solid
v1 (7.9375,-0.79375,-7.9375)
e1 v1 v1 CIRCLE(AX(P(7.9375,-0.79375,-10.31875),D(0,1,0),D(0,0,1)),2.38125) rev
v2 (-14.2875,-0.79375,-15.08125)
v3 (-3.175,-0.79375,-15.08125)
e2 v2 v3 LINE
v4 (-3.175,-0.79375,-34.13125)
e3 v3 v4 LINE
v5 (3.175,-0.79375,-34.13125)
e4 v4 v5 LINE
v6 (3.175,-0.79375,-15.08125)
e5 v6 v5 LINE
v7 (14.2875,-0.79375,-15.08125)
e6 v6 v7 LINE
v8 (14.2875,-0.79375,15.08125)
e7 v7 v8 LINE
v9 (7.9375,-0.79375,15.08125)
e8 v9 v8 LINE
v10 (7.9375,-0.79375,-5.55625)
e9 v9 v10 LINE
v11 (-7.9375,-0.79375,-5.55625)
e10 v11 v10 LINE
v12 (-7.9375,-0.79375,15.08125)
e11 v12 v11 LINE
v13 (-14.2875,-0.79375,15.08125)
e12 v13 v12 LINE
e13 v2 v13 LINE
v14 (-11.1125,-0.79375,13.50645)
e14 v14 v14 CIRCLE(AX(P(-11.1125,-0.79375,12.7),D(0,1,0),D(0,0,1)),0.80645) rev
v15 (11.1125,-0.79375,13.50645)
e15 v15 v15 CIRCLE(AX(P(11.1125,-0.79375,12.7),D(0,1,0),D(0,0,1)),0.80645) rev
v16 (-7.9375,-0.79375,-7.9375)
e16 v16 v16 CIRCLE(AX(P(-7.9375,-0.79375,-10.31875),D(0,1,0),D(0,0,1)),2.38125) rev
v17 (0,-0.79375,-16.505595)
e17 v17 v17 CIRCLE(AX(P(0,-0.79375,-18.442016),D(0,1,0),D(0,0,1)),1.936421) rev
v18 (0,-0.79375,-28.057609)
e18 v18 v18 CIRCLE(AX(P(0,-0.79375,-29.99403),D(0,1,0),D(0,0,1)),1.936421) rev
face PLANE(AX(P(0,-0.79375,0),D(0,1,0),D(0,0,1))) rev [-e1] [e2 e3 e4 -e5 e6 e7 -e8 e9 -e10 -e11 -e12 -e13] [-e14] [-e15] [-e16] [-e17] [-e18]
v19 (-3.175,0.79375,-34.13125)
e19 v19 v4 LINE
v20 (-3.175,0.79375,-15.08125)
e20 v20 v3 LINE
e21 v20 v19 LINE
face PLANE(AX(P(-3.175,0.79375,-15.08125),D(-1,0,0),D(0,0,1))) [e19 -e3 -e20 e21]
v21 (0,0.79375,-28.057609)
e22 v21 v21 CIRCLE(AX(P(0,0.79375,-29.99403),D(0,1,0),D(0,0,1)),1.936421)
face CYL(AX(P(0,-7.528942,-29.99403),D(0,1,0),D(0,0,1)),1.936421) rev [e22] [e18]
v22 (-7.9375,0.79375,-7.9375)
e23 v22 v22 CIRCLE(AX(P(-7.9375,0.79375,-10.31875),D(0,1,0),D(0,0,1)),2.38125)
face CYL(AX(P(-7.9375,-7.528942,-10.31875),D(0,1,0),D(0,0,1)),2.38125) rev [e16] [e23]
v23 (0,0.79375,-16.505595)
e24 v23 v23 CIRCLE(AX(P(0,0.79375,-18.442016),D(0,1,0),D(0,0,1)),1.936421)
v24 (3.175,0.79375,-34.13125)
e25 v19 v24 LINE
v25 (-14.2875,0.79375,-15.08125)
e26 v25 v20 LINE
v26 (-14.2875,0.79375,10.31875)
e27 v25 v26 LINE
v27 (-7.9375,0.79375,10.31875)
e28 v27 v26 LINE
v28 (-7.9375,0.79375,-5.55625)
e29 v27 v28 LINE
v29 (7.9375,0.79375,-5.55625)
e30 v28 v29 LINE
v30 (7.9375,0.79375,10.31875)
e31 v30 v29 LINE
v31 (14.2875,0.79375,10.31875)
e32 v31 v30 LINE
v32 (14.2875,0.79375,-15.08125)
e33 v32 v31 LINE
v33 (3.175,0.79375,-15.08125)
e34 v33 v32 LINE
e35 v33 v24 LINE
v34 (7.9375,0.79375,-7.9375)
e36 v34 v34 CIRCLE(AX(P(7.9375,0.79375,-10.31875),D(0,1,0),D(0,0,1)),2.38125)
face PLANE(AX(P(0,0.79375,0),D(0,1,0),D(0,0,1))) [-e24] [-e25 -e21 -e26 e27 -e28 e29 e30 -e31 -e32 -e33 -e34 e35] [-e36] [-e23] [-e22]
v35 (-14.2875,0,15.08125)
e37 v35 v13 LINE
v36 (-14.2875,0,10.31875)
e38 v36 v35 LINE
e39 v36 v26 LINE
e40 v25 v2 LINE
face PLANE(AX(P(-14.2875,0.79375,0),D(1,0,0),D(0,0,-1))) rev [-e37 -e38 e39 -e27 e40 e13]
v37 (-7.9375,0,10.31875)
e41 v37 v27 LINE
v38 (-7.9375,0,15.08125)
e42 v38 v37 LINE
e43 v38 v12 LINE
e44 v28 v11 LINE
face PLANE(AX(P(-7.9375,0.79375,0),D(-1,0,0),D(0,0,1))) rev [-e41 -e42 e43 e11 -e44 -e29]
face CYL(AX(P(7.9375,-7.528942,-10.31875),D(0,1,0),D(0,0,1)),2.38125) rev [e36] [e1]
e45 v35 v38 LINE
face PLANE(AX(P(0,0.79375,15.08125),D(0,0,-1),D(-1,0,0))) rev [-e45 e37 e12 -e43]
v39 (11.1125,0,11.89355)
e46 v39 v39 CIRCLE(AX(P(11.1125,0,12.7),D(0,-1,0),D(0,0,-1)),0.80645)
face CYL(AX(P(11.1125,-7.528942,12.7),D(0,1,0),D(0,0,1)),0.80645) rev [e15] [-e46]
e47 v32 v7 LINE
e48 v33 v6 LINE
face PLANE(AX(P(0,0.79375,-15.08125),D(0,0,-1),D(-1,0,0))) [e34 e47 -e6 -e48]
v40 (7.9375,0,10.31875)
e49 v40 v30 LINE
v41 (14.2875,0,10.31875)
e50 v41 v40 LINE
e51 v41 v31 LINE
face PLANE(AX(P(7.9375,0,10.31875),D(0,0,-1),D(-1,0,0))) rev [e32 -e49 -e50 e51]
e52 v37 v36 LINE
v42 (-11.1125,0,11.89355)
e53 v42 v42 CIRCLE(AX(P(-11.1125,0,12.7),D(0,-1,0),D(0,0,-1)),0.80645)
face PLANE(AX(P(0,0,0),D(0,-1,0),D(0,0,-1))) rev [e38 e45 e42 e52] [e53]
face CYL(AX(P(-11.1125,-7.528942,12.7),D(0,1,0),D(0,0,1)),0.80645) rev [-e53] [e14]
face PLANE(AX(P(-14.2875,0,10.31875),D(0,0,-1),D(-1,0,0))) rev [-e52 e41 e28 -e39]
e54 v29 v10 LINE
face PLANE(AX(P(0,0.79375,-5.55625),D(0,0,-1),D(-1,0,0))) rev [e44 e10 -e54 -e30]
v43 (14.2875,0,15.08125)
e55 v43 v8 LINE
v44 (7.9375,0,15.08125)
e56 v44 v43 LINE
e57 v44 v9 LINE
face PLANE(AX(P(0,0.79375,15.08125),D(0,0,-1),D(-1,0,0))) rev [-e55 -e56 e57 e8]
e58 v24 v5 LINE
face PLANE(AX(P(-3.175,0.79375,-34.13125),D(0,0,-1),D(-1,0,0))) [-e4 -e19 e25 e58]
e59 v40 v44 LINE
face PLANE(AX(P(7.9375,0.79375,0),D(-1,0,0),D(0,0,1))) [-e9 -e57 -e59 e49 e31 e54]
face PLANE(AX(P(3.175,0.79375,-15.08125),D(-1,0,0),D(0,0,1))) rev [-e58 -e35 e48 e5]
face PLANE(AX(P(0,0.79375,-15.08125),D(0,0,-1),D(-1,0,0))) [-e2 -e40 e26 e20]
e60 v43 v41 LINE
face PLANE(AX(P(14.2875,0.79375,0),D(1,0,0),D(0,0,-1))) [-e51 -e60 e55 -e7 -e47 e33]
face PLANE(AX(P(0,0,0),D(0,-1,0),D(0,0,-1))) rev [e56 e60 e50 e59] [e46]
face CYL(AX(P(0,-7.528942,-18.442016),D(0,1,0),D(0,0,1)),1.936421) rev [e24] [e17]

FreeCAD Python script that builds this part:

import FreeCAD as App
import Part
import Sketcher

V = App.Vector
Q = App.Units.Quantity

doc = App.newDocument("Part")
body = doc.addObject("PartDesign::Body", "Body")

# Sketch on XZ plane
sketch1 = body.newObject("Sketcher::SketchObject", "Sketch")
sketch1.AttachmentSupport = (doc.getObject("XZ_Plane"), [""])
sketch1.MapMode = "FlatFace"
sketch1.addGeometry(Part.LineSegment(V(-14, -15, 0), V(-14, 15, 0)), False)
sketch1.addGeometry(Part.LineSegment(V(-14, 15, 0), V(-8, 15, 0)), False)
sketch1.addGeometry(Part.LineSegment(V(-8, 15, 0), V(-8, -6, 0)), False)
sketch1.addGeometry(Part.LineSegment(V(-8, -6, 0), V(8, -6, 0)), False)
sketch1.addGeometry(Part.LineSegment(V(8, -6, 0), V(8, 15, 0)), False)
sketch1.addGeometry(Part.LineSegment(V(8, 15, 0), V(14, 15, 0)), False)
sketch1.addGeometry(Part.LineSegment(V(14, 15, 0), V(14, -15, 0)), False)
sketch1.addGeometry(Part.LineSegment(V(14, -15, 0), V(3, -15, 0)), False)
sketch1.addGeometry(Part.LineSegment(V(3, -15, 0), V(3, -34, 0)), False)
sketch1.addGeometry(Part.LineSegment(V(3, -34, 0), V(-3, -34, 0)), False)
sketch1.addGeometry(Part.LineSegment(V(-3, -34, 0), V(-3, -15, 0)), False)
sketch1.addGeometry(Part.LineSegment(V(-3, -15, 0), V(-14, -15, 0)), False)
sketch1.addConstraint(Sketcher.Constraint("Coincident", 0, 2, 1, 1))
sketch1.addConstraint(Sketcher.Constraint("Coincident", 1, 2, 2, 1))
sketch1.addConstraint(Sketcher.Constraint("Coincident", 2, 2, 3, 1))
sketch1.addConstraint(Sketcher.Constraint("Coincident", 3, 2, 4, 1))
sketch1.addConstraint(Sketcher.Constraint("Coincident", 4, 2, 5, 1))
sketch1.addConstraint(Sketcher.Constraint("Coincident", 5, 2, 6, 1))
sketch1.addConstraint(Sketcher.Constraint("Coincident", 6, 2, 7, 1))
sketch1.addConstraint(Sketcher.Constraint("Coincident", 7, 2, 8, 1))
sketch1.addConstraint(Sketcher.Constraint("Coincident", 8, 2, 9, 1))
sketch1.addConstraint(Sketcher.Constraint("Coincident", 9, 2, 10, 1))
sketch1.addConstraint(Sketcher.Constraint("Coincident", 10, 2, 11, 1))
sketch1.addConstraint(Sketcher.Constraint("Coincident", 11, 2, 0, 1))
sketch1.addConstraint(Sketcher.Constraint("Vertical", 0))
sketch1.addConstraint(Sketcher.Constraint("Horizontal", 1))
sketch1.addConstraint(Sketcher.Constraint("Vertical", 2))
sketch1.addConstraint(Sketcher.Constraint("Horizontal", 3))
sketch1.addConstraint(Sketcher.Constraint("Vertical", 4))
sketch1.addConstraint(Sketcher.Constraint("Horizontal", 5))
sketch1.addConstraint(Sketcher.Constraint("Vertical", 6))
sketch1.addConstraint(Sketcher.Constraint("Horizontal", 7))
sketch1.addConstraint(Sketcher.Constraint("Vertical", 8))
sketch1.addConstraint(Sketcher.Constraint("Horizontal", 9))
sketch1.addConstraint(Sketcher.Constraint("Vertical", 10))
sketch1.addConstraint(Sketcher.Constraint("Horizontal", 11))
sketch1.addConstraint(Sketcher.Constraint("Symmetric", 0, 2, 6, 2, -1, 1))
sketch1.addConstraint(Sketcher.Constraint("Symmetric", 1, 2, 4, 2, -2))
sketch1.addConstraint(Sketcher.Constraint("Symmetric", 7, 2, 10, 2, -2))
sketch1.addConstraint(Sketcher.Constraint("Equal", 5, 9))
sketch1.addConstraint(Sketcher.Constraint("DistanceX", 1, 1, 1, 2, Q("0.25 in")))
sketch1.addConstraint(Sketcher.Constraint("DistanceY", 8, 2, 8, 1, Q("0.75 in")))
sketch1.addConstraint(Sketcher.Constraint("DistanceX", 3, 1, 3, 2, Q("0.625 in")))
sketch1.addConstraint(Sketcher.Constraint("DistanceY", 0, 1, 0, 2, Q("1.1875 in")))
sketch1.addConstraint(Sketcher.Constraint("DistanceY", 2, 2, 2, 1, Q("0.8125 in")))
pad1 = body.newObject("PartDesign::Pad", "Pad")
pad1.Profile = sketch1
pad1.Length = Q("0.0625 in")
pad1.Midplane = True

# Sketch on XZ plane
sketch2 = body.newObject("Sketcher::SketchObject", "Sketch001")
sketch2.AttachmentSupport = (doc.getObject("XZ_Plane"), [""])
sketch2.MapMode = "FlatFace"
sketch2.AttachmentOffset = App.Placement(V(0, 0, -0.03125 * 25.4), App.Rotation())
sketch2.addGeometry(Part.LineSegment(V(-14.3, 10.3, 0), V(-14.3, 15.1, 0)), False)
sketch2.addGeometry(Part.LineSegment(V(-14.3, 15.1, 0), V(-7.9, 15.1, 0)), False)
sketch2.addGeometry(Part.LineSegment(V(-7.9, 15.1, 0), V(-7.9, 10.3, 0)), False)
sketch2.addGeometry(Part.LineSegment(V(-7.9, 10.3, 0), V(-14.3, 10.3, 0)), False)
sketch2.addGeometry(Part.LineSegment(V(7.9, 10.3, 0), V(7.9, 15.1, 0)), False)
sketch2.addGeometry(Part.LineSegment(V(7.9, 15.1, 0), V(14.3, 15.1, 0)), False)
sketch2.addGeometry(Part.LineSegment(V(14.3, 15.1, 0), V(14.3, 10.3, 0)), False)
sketch2.addGeometry(Part.LineSegment(V(14.3, 10.3, 0), V(7.9, 10.3, 0)), False)
sketch2.addConstraint(Sketcher.Constraint("Coincident", 0, 2, 1, 1))
sketch2.addConstraint(Sketcher.Constraint("Coincident", 1, 2, 2, 1))
sketch2.addConstraint(Sketcher.Constraint("Coincident", 2, 2, 3, 1))
sketch2.addConstraint(Sketcher.Constraint("Coincident", 3, 2, 0, 1))
sketch2.addConstraint(Sketcher.Constraint("Coincident", 4, 2, 5, 1))
sketch2.addConstraint(Sketcher.Constraint("Coincident", 5, 2, 6, 1))
sketch2.addConstraint(Sketcher.Constraint("Coincident", 6, 2, 7, 1))
sketch2.addConstraint(Sketcher.Constraint("Coincident", 7, 2, 4, 1))
sketch2.addConstraint(Sketcher.Constraint("Vertical", 0))
sketch2.addConstraint(Sketcher.Constraint("Horizontal", 1))
sketch2.addConstraint(Sketcher.Constraint("Vertical", 2))
sketch2.addConstraint(Sketcher.Constraint("Horizontal", 3))
sketch2.addConstraint(Sketcher.Constraint("Vertical", 4))
sketch2.addConstraint(Sketcher.Constraint("Horizontal", 5))
sketch2.addConstraint(Sketcher.Constraint("Vertical", 6))
sketch2.addConstraint(Sketcher.Constraint("Horizontal", 7))
sketch2.addConstraint(Sketcher.Constraint("Symmetric", 1, 2, 4, 2, -2))
sketch2.addConstraint(Sketcher.Constraint("Symmetric", 3, 2, 6, 2, -2))
sketch2.addConstraint(Sketcher.Constraint("DistanceX", 1, 1, 1, 2, Q("0.25 in")))
sketch2.addConstraint(Sketcher.Constraint("DistanceY", 0, 1, 0, 2, Q("0.1875 in")))
sketch2.addConstraint(Sketcher.Constraint("DistanceX", 0, 2, -1, 1, Q("0.5625 in")))
sketch2.addConstraint(Sketcher.Constraint("DistanceY", -1, 1, 0, 2, Q("0.59375 in")))
pocket1 = body.newObject("PartDesign::Pocket", "Pocket")
pocket1.Profile = sketch2
pocket1.Length = Q("0.03125 in")
pocket1.Reversed = True

# Sketch on XZ plane
sketch3 = body.newObject("Sketcher::SketchObject", "Sketch002")
sketch3.AttachmentSupport = (doc.getObject("XZ_Plane"), [""])
sketch3.MapMode = "FlatFace"
sketch3.AttachmentOffset = App.Placement(V(0, 0, -0.03125 * 25.4), App.Rotation())
sketch3.addGeometry(Part.Circle(V(-11.1, 12.7, 0), V(0, 0, 1), 0.8), False)
sketch3.addGeometry(Part.Circle(V(-7.9, -10.3, 0), V(0, 0, 1), 2.4), False)
sketch3.addGeometry(Part.Circle(V(11.1, 12.7, 0), V(0, 0, 1), 0.8), False)
sketch3.addGeometry(Part.Circle(V(7.9, -10.3, 0), V(0, 0, 1), 2.4), False)
sketch3.addGeometry(Part.Circle(V(0, -18.4, 0), V(0, 0, 1), 1.9), False)
sketch3.addGeometry(Part.Circle(V(0, -30, 0), V(0, 0, 1), 1.9), False)
sketch3.addConstraint(Sketcher.Constraint("Equal", 0, 2))
sketch3.addConstraint(Sketcher.Constraint("Equal", 1, 3))
sketch3.addConstraint(Sketcher.Constraint("Equal", 4, 5))
sketch3.addConstraint(Sketcher.Constraint("Symmetric", 0, 3, 2, 3, -2))
sketch3.addConstraint(Sketcher.Constraint("Symmetric", 1, 3, 3, 3, -2))
sketch3.addConstraint(Sketcher.Constraint("PointOnObject", 4, 3, -2))
sketch3.addConstraint(Sketcher.Constraint("PointOnObject", 5, 3, -2))
sketch3.addConstraint(Sketcher.Constraint("Diameter", 1, Q("0.1875 in")))
sketch3.addConstraint(Sketcher.Constraint("Diameter", 0, Q("0.0635 in")))
sketch3.addConstraint(Sketcher.Constraint("DistanceY", -1, 1, 0, 3, Q("0.5 in")))
sketch3.addConstraint(Sketcher.Constraint("DistanceX", 1, 3, 2, 3, Q("0.75 in")))
sketch3.addConstraint(Sketcher.Constraint("Diameter", 4, 3.872842))
sketch3.addConstraint(Sketcher.Constraint("DistanceX", 0, 3, -1, 1, Q("0.4375 in")))
sketch3.addConstraint(Sketcher.Constraint("DistanceY", 1, 3, -1, 1, Q("0.40625 in")))
sketch3.addConstraint(Sketcher.Constraint("DistanceY", 5, 3, -1, 1, 29.99403))
sketch3.addConstraint(Sketcher.Constraint("DistanceY", 4, 3, -1, 1, 18.442016))
pocket2 = body.newObject("PartDesign::Pocket", "Pocket001")
pocket2.Profile = sketch3
pocket2.Length = Q("0.0625 in")
pocket2.Reversed = True

doc.recompute()
